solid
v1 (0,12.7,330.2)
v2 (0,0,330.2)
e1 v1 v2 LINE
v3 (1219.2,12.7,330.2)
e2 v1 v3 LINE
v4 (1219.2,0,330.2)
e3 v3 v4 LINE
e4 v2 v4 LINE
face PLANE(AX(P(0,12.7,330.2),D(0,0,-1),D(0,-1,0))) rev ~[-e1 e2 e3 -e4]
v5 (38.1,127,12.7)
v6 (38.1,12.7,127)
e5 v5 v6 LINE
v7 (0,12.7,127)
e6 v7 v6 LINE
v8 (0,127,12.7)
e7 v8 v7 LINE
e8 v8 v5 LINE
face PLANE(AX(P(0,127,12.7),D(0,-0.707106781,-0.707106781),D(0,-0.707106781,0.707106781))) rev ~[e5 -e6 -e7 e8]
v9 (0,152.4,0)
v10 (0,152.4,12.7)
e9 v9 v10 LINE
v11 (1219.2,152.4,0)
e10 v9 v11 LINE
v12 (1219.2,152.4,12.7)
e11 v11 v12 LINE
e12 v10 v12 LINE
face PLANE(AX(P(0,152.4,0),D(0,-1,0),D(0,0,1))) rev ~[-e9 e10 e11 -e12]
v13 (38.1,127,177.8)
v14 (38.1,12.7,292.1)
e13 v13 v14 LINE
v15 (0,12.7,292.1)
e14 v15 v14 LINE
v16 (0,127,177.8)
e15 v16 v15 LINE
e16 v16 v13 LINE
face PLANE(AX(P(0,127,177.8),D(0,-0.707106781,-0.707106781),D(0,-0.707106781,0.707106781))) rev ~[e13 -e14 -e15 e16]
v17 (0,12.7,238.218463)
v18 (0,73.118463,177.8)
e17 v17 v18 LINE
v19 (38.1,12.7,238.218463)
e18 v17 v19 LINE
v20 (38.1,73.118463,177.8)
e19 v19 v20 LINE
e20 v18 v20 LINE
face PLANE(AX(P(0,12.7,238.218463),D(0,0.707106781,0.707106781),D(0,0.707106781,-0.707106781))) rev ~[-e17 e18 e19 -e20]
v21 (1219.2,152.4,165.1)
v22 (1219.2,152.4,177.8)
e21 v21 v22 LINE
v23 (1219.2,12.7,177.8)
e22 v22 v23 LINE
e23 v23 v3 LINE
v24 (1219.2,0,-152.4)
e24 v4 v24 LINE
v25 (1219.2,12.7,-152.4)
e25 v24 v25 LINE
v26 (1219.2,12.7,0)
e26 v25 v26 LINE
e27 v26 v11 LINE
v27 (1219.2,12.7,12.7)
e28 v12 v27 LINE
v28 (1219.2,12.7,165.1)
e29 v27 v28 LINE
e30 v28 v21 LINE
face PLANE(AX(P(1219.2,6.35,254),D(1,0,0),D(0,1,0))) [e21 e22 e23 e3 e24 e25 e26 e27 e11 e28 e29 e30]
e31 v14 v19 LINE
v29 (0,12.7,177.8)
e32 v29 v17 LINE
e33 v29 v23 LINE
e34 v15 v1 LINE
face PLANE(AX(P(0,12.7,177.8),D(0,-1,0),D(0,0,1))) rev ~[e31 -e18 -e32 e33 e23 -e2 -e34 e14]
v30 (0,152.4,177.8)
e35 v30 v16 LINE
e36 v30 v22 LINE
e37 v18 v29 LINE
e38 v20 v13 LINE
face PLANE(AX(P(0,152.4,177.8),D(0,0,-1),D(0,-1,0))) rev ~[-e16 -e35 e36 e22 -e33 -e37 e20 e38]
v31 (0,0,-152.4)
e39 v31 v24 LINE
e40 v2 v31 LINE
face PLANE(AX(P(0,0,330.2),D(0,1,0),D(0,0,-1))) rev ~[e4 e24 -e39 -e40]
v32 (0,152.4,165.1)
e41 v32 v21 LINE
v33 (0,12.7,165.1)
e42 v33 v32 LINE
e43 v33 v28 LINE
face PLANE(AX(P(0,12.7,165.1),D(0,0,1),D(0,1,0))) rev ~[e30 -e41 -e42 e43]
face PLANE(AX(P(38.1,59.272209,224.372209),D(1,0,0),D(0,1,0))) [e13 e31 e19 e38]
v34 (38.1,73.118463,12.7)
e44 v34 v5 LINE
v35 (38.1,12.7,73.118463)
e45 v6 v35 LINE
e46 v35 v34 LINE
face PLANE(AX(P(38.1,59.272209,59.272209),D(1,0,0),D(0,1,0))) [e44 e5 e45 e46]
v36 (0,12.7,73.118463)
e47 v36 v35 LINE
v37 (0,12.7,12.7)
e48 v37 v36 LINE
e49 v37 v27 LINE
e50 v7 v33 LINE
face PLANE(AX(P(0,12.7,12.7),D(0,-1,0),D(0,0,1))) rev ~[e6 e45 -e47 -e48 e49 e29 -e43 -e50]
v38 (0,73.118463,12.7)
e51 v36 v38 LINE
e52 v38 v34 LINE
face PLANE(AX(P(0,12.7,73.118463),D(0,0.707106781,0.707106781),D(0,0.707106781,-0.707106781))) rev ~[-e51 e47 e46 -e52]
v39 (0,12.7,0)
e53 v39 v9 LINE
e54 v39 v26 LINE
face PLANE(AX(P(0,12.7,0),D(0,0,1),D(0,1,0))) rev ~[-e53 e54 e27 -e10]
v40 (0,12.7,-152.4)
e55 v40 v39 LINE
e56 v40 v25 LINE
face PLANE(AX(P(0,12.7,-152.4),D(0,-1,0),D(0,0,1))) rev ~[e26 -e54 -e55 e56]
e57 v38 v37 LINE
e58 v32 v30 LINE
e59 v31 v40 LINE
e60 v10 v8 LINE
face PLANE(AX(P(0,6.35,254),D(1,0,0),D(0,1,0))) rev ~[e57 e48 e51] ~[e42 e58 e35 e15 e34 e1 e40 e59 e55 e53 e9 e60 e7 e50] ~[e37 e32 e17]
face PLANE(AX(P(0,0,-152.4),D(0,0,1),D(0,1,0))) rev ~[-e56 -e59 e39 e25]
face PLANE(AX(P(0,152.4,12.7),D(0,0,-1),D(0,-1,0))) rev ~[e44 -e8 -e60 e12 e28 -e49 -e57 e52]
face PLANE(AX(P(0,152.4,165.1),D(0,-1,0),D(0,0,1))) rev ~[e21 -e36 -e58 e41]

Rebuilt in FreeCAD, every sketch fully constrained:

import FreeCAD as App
import Part
import Sketcher
Q = App.Units.Quantity

doc = App.newDocument("Part")
body = doc.addObject("PartDesign::Body", "Body")

sketch1 = body.newObject("Sketcher::SketchObject", "Sketch")
sketch1.AttachmentSupport = (doc.getObject("YZ_Plane"), [""])
sketch1.MapMode = "FlatFace"
sketch1.addGeometry([
    Part.LineSegment(App.Vector(0, 330.2, 0), App.Vector(0, -152.4, 0)),
    Part.LineSegment(App.Vector(0, -152.4, 0), App.Vector(12.7, -152.4, 0)),
    Part.LineSegment(App.Vector(12.7, -152.4, 0), App.Vector(12.7, 0, 0)),
    Part.LineSegment(App.Vector(12.7, 0, 0), App.Vector(152.4, 0, 0)),
    Part.LineSegment(App.Vector(152.4, 0, 0), App.Vector(152.4, 12.7, 0)),
    Part.LineSegment(App.Vector(152.4, 12.7, 0), App.Vector(12.7, 12.7, 0)),
    Part.LineSegment(App.Vector(12.7, 12.7, 0), App.Vector(12.7, 165.1, 0)),
    Part.LineSegment(App.Vector(12.7, 165.1, 0), App.Vector(152.4, 165.1, 0)),
    Part.LineSegment(App.Vector(152.4, 165.1, 0), App.Vector(152.4, 177.8, 0)),
    Part.LineSegment(App.Vector(152.4, 177.8, 0), App.Vector(12.7, 177.8, 0)),
    Part.LineSegment(App.Vector(12.7, 177.8, 0), App.Vector(12.7, 330.2, 0)),
    Part.LineSegment(App.Vector(12.7, 330.2, 0), App.Vector(0, 330.2, 0)),
], False)
sketch1.addConstraint([
    Sketcher.Constraint("Coincident", 0, 2, 1, 1),
    Sketcher.Constraint("Coincident", 1, 2, 2, 1),
    Sketcher.Constraint("Coincident", 2, 2, 3, 1),
    Sketcher.Constraint("Coincident", 3, 2, 4, 1),
    Sketcher.Constraint("Coincident", 4, 2, 5, 1),
    Sketcher.Constraint("Coincident", 5, 2, 6, 1),
    Sketcher.Constraint("Coincident", 6, 2, 7, 1),
    Sketcher.Constraint("Coincident", 7, 2, 8, 1),
    Sketcher.Constraint("Coincident", 8, 2, 9, 1),
    Sketcher.Constraint("Coincident", 9, 2, 10, 1),
    Sketcher.Constraint("Coincident", 10, 2, 11, 1),
    Sketcher.Constraint("Coincident", 11, 2, 0, 1),
    Sketcher.Constraint("Vertical", 0),
    Sketcher.Constraint("Horizontal", 1),
    Sketcher.Constraint("Vertical", 2),
    Sketcher.Constraint("Horizontal", 3),
    Sketcher.Constraint("Vertical", 4),
    Sketcher.Constraint("Horizontal", 5),
    Sketcher.Constraint("Vertical", 6),
    Sketcher.Constraint("Horizontal", 7),
    Sketcher.Constraint("Vertical", 8),
    Sketcher.Constraint("Horizontal", 9),
    Sketcher.Constraint("Vertical", 10),
    Sketcher.Constraint("Horizontal", 11),
    Sketcher.Constraint("PointOnObject", 0, 2, -2),
    Sketcher.Constraint("PointOnObject", 2, 2, -1),
    Sketcher.Constraint("Vertical", 2, 2, 5, 2),
    Sketcher.Constraint("Vertical", 4, 2, 7, 2),
    Sketcher.Constraint("Vertical", 6, 2, 9, 2),
    Sketcher.Constraint("Equal", 11, 4),
    Sketcher.Constraint("Equal", 2, 6),
    Sketcher.Constraint("Equal", 4, 8),
    Sketcher.Constraint("Equal", 6, 10),
    Sketcher.Constraint("DistanceY", 0, 2, 0, 1, Q("19 in")),
    Sketcher.Constraint("DistanceY", 2, 1, 2, 2, Q("6 in")),
    Sketcher.Constraint("DistanceX", 3, 1, 3, 2, Q("5.5 in")),
])
pad1 = body.newObject("PartDesign::Pad", "Pad")
pad1.Profile = sketch1
pad1.Length = Q("48 in")

sketch2 = body.newObject("Sketcher::SketchObject", "Sketch001")
sketch2.AttachmentSupport = (doc.getObject("YZ_Plane"), [""])
sketch2.MapMode = "FlatFace"
sketch2.addGeometry([
    Part.LineSegment(App.Vector(12.7, 238.218463, 0), App.Vector(73.118463, 177.8, 0)),
    Part.LineSegment(App.Vector(73.118463, 177.8, 0), App.Vector(127, 177.8, 0)),
    Part.LineSegment(App.Vector(127, 177.8, 0), App.Vector(12.7, 292.1, 0)),
    Part.LineSegment(App.Vector(12.7, 292.1, 0), App.Vector(12.7, 238.218463, 0)),
    Part.LineSegment(App.Vector(12.7, 73.118463, 0), App.Vector(73.118463, 12.7, 0)),
    Part.LineSegment(App.Vector(73.118463, 12.7, 0), App.Vector(127, 12.7, 0)),
    Part.LineSegment(App.Vector(127, 12.7, 0), App.Vector(12.7, 127, 0)),
    Part.LineSegment(App.Vector(12.7, 127, 0), App.Vector(12.7, 73.118463, 0)),
], False)
sketch2.addConstraint([
    Sketcher.Constraint("Coincident", 0, 2, 1, 1),
    Sketcher.Constraint("Coincident", 1, 2, 2, 1),
    Sketcher.Constraint("Coincident", 2, 2, 3, 1),
    Sketcher.Constraint("Coincident", 3, 2, 0, 1),
    Sketcher.Constraint("Coincident", 4, 2, 5, 1),
    Sketcher.Constraint("Coincident", 5, 2, 6, 1),
    Sketcher.Constraint("Coincident", 6, 2, 7, 1),
    Sketcher.Constraint("Coincident", 7, 2, 4, 1),
    Sketcher.Constraint("Horizontal", 1),
    Sketcher.Constraint("Vertical", 3),
    Sketcher.Constraint("Horizontal", 5),
    Sketcher.Constraint("Vertical", 7),
    Sketcher.Constraint("Parallel", 0, 2),
    Sketcher.Constraint("Parallel", 2, 4),
    Sketcher.Constraint("Parallel", 4, 6),
    Sketcher.Constraint("Vertical", 0, 2, 4, 2),
    Sketcher.Constraint("Vertical", 1, 2, 5, 2),
    Sketcher.Constraint("Vertical", 3, 2, 6, 2),
    Sketcher.Constraint("Equal", 5, 3),
    Sketcher.Constraint("DistanceY", -1, 1, 0, 2, Q("7 in")),
    Sketcher.Constraint("DistanceX", -1, 1, 1, 2, Q("5 in")),
    Sketcher.Constraint("DistanceY", -1, 1, 6, 2, Q("5 in")),
    Sketcher.Constraint("DistanceY", 4, 2, 2, 2, Q("11 in")),
    Sketcher.Constraint("Distance", 0, 85.44461),
])
pad2 = body.newObject("PartDesign::Pad", "Pad001")
pad2.Profile = sketch2
pad2.Length = Q("1.5 in")

doc.recompute()
